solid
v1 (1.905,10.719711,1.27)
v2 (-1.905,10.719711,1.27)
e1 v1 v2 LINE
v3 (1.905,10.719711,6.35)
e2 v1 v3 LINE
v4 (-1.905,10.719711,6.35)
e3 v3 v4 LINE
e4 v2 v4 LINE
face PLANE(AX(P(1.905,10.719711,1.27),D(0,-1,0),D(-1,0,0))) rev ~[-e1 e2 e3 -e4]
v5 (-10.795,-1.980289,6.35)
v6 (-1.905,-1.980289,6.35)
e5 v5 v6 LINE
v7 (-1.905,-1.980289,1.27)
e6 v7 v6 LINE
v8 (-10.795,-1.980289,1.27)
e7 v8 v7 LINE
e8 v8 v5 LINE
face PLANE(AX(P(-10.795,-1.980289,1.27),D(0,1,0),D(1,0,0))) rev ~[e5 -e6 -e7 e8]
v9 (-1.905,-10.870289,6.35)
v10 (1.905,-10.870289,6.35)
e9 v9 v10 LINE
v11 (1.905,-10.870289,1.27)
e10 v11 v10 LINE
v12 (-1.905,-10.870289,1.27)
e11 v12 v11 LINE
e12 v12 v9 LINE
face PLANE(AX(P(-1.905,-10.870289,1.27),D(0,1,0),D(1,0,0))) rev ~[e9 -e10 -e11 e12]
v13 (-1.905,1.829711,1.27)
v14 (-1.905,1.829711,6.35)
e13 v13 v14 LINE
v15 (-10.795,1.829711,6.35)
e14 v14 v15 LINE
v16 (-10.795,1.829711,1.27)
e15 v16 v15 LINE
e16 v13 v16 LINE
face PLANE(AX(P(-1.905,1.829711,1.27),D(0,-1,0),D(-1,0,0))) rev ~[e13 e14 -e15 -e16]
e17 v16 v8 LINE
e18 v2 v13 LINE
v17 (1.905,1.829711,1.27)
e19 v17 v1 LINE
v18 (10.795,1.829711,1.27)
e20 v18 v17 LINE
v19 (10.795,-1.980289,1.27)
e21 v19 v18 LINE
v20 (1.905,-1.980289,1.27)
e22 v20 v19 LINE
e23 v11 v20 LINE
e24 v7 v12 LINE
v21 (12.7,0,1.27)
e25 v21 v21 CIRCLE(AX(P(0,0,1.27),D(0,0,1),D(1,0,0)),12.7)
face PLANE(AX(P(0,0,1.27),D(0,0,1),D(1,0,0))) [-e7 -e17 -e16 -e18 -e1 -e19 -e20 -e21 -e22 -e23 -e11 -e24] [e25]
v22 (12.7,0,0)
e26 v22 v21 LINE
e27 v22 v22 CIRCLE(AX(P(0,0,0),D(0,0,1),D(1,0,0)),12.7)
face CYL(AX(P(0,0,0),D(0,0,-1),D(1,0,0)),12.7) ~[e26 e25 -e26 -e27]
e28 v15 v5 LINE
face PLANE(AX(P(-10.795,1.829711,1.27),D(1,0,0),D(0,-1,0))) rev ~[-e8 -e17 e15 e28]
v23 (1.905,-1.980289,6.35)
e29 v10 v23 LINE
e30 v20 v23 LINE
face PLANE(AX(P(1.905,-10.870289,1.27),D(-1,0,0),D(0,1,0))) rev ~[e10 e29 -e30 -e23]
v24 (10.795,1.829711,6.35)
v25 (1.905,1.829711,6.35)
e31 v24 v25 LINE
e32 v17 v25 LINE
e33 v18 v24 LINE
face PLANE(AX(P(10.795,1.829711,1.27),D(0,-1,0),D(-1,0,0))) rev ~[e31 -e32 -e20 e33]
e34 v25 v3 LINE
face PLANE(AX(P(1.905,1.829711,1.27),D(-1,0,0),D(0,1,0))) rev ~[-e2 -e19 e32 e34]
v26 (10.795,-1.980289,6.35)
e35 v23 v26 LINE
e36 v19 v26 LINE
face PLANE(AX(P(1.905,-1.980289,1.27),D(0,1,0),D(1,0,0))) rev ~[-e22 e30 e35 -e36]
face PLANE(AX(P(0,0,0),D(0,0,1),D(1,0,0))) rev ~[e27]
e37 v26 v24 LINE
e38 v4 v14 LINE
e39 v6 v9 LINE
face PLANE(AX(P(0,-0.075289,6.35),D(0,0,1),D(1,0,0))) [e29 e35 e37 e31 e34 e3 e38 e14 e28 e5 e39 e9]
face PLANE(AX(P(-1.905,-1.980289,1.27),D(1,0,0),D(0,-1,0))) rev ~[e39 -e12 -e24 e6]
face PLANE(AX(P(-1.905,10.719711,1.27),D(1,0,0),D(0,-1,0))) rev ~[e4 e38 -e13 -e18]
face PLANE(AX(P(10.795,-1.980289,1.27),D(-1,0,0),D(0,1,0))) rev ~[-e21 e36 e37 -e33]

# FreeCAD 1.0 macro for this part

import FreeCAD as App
import Part
import Sketcher
Q = App.Units.Quantity

doc = App.newDocument("Part")
body = doc.addObject("PartDesign::Body", "Body")

sketch1 = body.newObject("Sketcher::SketchObject", "Sketch")
sketch1.AttachmentSupport = (doc.getObject("XY_Plane"), [""])
sketch1.MapMode = "FlatFace"
sketch1.addGeometry(Part.Circle(App.Vector(0, 0, 0), App.Vector(0, 0, 1), 12.7), False)
sketch1.addConstraint([
    Sketcher.Constraint("Coincident", 0, 3, -1, 1),
    Sketcher.Constraint("Diameter", 0, Q("1 in")),
])
pad1 = body.newObject("PartDesign::Pad", "Pad")
pad1.Profile = sketch1
pad1.Length = Q("0.05 in")

sketch2 = body.newObject("Sketcher::SketchObject", "Sketch001")
sketch2.AttachmentSupport = (doc.getObject("XY_Plane"), [""])
sketch2.MapMode = "FlatFace"
sketch2.AttachmentOffset = App.Placement(App.Vector(0, 0, 0.05 * 25.4), App.Rotation())
sketch2.addGeometry([
    Part.LineSegment(App.Vector(1.905, 10.719711, 0), App.Vector(-1.905, 10.719711, 0)),
    Part.LineSegment(App.Vector(-1.905, 10.719711, 0), App.Vector(-1.905, 1.829711, 0)),
    Part.LineSegment(App.Vector(-1.905, 1.829711, 0), App.Vector(-10.795, 1.829711, 0)),
    Part.LineSegment(App.Vector(-10.795, 1.829711, 0), App.Vector(-10.795, -1.980289, 0)),
    Part.LineSegment(App.Vector(-10.795, -1.980289, 0), App.Vector(-1.905, -1.980289, 0)),
    Part.LineSegment(App.Vector(-1.905, -1.980289, 0), App.Vector(-1.905, -10.870289, 0)),
    Part.LineSegment(App.Vector(-1.905, -10.870289, 0), App.Vector(1.905, -10.870289, 0)),
    Part.LineSegment(App.Vector(1.905, -10.870289, 0), App.Vector(1.905, -1.980289, 0)),
    Part.LineSegment(App.Vector(1.905, -1.980289, 0), App.Vector(10.795, -1.980289, 0)),
    Part.LineSegment(App.Vector(10.795, -1.980289, 0), App.Vector(10.795, 1.829711, 0)),
    Part.LineSegment(App.Vector(10.795, 1.829711, 0), App.Vector(1.905, 1.829711, 0)),
    Part.LineSegment(App.Vector(1.905, 1.829711, 0), App.Vector(1.905, 10.719711, 0)),
], False)
sketch2.addConstraint([
    Sketcher.Constraint("Coincident", 0, 2, 1, 1),
    Sketcher.Constraint("Coincident", 1, 2, 2, 1),
    Sketcher.Constraint("Coincident", 2, 2, 3, 1),
    Sketcher.Constraint("Coincident", 3, 2, 4, 1),
    Sketcher.Constraint("Coincident", 4, 2, 5, 1),
    Sketcher.Constraint("Coincident", 5, 2, 6, 1),
    Sketcher.Constraint("Coincident", 6, 2, 7, 1),
    Sketcher.Constraint("Coincident", 7, 2, 8, 1),
    Sketcher.Constraint("Coincident", 8, 2, 9, 1),
    Sketcher.Constraint("Coincident", 9, 2, 10, 1),
    Sketcher.Constraint("Coincident", 10, 2, 11, 1),
    Sketcher.Constraint("Coincident", 11, 2, 0, 1),
    Sketcher.Constraint("Horizontal", 0),
    Sketcher.Constraint("Vertical", 1),
    Sketcher.Constraint("Horizontal", 2),
    Sketcher.Constraint("Vertical", 3),
    Sketcher.Constraint("Horizontal", 4),
    Sketcher.Constraint("Vertical", 5),
    Sketcher.Constraint("Horizontal", 6),
    Sketcher.Constraint("Vertical", 7),
    Sketcher.Constraint("Horizontal", 8),
    Sketcher.Constraint("Vertical", 9),
    Sketcher.Constraint("Horizontal", 10),
    Sketcher.Constraint("Vertical", 11),
    Sketcher.Constraint("Symmetric", 4, 2, 7, 2, -2),
    Sketcher.Constraint("Symmetric", 2, 2, 9, 2, -2),
    Sketcher.Constraint("Vertical", 1, 2, 4, 2),
    Sketcher.Constraint("Vertical", 7, 2, 10, 2),
    Sketcher.Constraint("Equal", 10, 1),
    Sketcher.Constraint("Equal", 6, 3),
    Sketcher.Constraint("Equal", 1, 5),
    Sketcher.Constraint("DistanceX", 0, 2, 0, 1, Q("0.15 in")),
    Sketcher.Constraint("DistanceX", 2, 2, 2, 1, Q("0.35 in")),
    Sketcher.Constraint("DistanceY", -1, 1, 0, 2, 10.719711),
])
pad2 = body.newObject("PartDesign::Pad", "Pad001")
pad2.Profile = sketch2
pad2.Length = Q("0.2 in")

doc.recompute()
